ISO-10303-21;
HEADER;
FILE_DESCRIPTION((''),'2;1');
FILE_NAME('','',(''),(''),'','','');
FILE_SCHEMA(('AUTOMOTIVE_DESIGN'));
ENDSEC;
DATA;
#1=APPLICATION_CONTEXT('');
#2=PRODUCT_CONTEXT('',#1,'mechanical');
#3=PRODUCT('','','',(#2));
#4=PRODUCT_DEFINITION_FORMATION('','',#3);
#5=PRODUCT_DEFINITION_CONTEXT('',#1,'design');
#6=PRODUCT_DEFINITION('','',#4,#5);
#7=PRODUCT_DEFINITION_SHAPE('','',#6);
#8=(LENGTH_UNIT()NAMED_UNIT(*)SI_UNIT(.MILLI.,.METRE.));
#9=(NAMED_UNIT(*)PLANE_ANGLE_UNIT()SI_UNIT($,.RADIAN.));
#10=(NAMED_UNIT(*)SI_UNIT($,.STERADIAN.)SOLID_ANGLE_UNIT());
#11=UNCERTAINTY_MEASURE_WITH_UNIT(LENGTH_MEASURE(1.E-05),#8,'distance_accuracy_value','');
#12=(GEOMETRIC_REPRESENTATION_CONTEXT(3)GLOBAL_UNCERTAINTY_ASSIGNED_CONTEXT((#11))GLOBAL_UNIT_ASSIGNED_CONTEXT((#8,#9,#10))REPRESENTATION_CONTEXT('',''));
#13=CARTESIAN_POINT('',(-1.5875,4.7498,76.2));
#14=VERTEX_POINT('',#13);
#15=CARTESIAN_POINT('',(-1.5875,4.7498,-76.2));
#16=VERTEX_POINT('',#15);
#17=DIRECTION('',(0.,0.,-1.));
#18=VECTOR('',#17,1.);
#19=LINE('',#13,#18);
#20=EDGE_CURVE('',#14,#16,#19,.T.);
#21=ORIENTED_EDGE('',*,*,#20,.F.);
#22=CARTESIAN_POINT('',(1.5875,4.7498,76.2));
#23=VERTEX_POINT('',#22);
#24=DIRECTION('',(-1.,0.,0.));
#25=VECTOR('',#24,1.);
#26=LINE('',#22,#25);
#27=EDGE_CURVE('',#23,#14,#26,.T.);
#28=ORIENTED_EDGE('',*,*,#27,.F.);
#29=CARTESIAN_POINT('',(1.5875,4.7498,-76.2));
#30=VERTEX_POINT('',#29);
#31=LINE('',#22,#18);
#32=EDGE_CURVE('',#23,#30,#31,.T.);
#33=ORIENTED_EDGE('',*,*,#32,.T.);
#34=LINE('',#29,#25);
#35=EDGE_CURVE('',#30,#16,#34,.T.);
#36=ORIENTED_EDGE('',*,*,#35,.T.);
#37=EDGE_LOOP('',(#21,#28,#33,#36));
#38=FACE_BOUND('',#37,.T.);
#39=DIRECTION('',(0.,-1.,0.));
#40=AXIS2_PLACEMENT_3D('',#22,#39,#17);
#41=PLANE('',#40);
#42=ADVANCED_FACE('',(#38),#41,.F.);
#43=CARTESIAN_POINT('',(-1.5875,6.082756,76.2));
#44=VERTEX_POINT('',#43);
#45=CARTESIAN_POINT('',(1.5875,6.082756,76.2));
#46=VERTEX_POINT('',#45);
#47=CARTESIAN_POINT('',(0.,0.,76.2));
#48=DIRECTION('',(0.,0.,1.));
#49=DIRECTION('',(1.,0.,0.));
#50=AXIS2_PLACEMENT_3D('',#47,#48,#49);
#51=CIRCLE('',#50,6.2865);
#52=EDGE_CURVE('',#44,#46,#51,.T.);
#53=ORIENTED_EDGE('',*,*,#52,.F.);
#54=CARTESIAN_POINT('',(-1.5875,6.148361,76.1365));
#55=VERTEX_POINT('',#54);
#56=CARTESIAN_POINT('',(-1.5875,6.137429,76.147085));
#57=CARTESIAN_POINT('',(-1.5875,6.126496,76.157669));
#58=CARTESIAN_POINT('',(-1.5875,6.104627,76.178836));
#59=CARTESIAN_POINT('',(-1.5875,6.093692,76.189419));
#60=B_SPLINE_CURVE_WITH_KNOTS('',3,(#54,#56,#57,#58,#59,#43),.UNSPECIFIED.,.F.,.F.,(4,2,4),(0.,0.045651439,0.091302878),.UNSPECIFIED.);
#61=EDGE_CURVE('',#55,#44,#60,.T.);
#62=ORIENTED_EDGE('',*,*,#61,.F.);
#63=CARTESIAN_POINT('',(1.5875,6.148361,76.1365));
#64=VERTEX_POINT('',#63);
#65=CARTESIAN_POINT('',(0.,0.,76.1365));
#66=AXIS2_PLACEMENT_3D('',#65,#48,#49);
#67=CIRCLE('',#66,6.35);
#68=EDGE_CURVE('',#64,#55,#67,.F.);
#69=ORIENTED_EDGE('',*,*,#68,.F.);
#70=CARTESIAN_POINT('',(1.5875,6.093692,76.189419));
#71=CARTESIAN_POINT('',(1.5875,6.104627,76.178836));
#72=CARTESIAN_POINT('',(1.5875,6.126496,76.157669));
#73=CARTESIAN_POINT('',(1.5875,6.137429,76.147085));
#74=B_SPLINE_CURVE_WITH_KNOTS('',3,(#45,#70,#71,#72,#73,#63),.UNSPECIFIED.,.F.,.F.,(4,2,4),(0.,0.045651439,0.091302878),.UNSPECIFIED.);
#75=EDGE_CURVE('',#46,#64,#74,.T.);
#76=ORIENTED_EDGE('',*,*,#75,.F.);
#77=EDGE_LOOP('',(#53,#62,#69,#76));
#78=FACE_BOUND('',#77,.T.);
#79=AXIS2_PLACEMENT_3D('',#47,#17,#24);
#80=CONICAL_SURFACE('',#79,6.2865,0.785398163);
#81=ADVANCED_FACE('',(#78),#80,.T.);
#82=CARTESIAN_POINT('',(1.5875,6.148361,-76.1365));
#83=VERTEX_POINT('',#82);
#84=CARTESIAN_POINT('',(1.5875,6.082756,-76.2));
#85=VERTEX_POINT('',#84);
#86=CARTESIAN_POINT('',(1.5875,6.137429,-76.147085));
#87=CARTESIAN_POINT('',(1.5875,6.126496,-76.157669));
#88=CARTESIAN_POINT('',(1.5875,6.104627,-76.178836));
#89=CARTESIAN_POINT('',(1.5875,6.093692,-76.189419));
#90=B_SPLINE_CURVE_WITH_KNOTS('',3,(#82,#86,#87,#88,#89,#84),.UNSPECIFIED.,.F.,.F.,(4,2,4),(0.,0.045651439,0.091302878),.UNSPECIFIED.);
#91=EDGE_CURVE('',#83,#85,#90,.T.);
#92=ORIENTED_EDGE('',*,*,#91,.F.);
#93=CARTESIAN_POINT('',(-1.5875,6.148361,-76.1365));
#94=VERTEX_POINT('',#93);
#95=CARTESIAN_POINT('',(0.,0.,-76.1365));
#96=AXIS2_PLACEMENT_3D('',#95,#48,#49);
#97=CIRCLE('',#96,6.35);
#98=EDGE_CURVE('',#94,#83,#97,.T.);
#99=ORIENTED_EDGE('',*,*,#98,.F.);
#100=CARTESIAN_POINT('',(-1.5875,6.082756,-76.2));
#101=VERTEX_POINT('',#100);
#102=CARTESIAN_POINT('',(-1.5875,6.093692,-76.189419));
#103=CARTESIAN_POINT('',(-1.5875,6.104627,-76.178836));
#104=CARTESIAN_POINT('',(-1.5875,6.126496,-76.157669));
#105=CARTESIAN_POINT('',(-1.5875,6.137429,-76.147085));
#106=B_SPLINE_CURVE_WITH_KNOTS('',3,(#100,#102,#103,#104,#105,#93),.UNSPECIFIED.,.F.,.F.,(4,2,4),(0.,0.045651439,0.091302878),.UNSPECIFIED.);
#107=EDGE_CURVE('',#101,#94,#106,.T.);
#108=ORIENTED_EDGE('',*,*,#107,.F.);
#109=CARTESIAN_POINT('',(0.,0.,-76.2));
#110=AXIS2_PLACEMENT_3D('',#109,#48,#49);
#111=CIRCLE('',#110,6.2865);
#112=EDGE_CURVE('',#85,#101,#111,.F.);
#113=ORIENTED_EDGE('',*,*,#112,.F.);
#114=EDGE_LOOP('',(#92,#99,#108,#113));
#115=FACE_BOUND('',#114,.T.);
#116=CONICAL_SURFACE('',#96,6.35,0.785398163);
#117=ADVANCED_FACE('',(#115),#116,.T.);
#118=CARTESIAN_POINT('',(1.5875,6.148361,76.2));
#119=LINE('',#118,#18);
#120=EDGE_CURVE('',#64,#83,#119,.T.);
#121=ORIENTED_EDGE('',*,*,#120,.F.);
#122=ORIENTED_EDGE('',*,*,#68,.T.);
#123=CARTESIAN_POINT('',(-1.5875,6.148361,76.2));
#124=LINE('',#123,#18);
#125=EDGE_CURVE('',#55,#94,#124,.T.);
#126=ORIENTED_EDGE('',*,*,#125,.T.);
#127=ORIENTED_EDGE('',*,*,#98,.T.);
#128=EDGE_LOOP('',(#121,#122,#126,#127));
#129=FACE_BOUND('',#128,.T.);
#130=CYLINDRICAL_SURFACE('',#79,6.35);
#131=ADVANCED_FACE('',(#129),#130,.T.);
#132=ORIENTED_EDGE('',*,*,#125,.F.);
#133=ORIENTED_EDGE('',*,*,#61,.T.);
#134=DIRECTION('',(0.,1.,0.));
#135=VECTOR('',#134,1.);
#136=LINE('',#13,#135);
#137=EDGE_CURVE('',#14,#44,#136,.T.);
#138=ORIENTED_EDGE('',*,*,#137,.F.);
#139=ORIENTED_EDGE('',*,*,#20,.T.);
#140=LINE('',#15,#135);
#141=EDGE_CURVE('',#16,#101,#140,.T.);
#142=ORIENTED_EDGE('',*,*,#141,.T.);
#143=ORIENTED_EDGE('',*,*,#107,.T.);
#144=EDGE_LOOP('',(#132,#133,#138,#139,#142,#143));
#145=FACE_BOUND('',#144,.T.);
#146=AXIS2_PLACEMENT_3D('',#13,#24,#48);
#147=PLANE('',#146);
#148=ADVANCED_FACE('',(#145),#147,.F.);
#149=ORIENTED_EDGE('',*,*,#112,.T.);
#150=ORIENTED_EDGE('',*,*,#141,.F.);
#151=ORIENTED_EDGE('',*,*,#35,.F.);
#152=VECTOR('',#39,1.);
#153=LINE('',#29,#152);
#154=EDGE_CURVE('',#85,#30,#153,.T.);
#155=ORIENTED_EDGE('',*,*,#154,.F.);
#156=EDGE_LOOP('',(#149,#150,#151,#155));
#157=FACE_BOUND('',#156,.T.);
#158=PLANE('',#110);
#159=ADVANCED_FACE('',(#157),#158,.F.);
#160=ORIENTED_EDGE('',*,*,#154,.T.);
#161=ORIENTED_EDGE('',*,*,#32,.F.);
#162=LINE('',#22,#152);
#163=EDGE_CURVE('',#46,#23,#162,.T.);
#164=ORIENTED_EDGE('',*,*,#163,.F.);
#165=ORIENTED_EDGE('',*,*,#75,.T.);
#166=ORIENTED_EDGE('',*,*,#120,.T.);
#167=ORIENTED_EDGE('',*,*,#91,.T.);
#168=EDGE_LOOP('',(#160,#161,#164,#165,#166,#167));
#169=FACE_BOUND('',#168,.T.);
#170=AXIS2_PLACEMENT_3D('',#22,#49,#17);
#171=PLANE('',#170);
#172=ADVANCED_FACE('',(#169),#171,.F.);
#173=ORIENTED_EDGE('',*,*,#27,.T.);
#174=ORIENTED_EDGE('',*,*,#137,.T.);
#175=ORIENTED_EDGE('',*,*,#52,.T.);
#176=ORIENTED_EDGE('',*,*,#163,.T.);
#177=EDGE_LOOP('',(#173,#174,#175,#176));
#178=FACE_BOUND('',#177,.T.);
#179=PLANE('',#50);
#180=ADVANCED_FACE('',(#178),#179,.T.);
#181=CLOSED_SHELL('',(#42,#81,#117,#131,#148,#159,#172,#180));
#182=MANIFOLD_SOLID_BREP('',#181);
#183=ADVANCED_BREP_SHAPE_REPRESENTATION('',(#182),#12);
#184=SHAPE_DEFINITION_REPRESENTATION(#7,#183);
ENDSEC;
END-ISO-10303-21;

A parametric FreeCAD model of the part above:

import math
import FreeCAD as App
import Part
import Sketcher

V = App.Vector
Q = App.Units.Quantity


def edges_at(feature, points):
    """Names of the edges that pass closest to the given points."""
    edges = feature.Shape.Edges
    near = lambda p: min(range(len(edges)), key=lambda i: edges[i].distToShape(Part.Vertex(*p))[0])
    return sorted({f"Edge{near(p) + 1}" for p in points})

doc = App.newDocument("Part")
body = doc.addObject("PartDesign::Body", "Body")

# Sketch on XY plane
sketch1 = body.newObject("Sketcher::SketchObject", "Sketch")
sketch1.AttachmentSupport = (doc.getObject("XY_Plane"), [""])
sketch1.MapMode = "FlatFace"
sketch1.addGeometry([
    Part.LineSegment(V(-1.5875, 4.7498, 0), V(-1.5875, 6.148361, 0)),
    Part.ArcOfCircle(Part.Circle(V(0, 0, 0), V(0, 0, 1), 6.35), math.radians(104.477512), math.radians(435.522488)),
    Part.LineSegment(V(1.5875, 6.148361, 0), V(1.5875, 4.7498, 0)),
    Part.LineSegment(V(1.5875, 4.7498, 0), V(-1.5875, 4.7498, 0)),
], False)
sketch1.addConstraint([
    Sketcher.Constraint("Coincident", 0, 2, 1, 1),
    Sketcher.Constraint("Coincident", 1, 2, 2, 1),
    Sketcher.Constraint("Coincident", 2, 2, 3, 1),
    Sketcher.Constraint("Coincident", 3, 2, 0, 1),
    Sketcher.Constraint("Vertical", 0),
    Sketcher.Constraint("Vertical", 2),
    Sketcher.Constraint("Horizontal", 3),
    Sketcher.Constraint("Coincident", 1, 3, -1, 1),
    Sketcher.Constraint("Horizontal", 0, 2, 1, 2),
    Sketcher.Constraint("Radius", 1, Q("0.25 in")),
    Sketcher.Constraint("DistanceX", 3, 2, 3, 1, Q("0.125 in")),
    Sketcher.Constraint("DistanceY", -1, 1, 2, 2, Q("0.187 in")),
])
pad1 = body.newObject("PartDesign::Pad", "Pad")
pad1.Profile = sketch1
pad1.Type = "TwoLengths"
pad1.Length = Q("3 in")
pad1.Length2 = Q("3 in")
doc.recompute()

chamfer = body.newObject("PartDesign::Chamfer", "Chamfer")
chamfer.Base = (pad1, edges_at(pad1, [(0, -6.35, -76.2), (0, -6.35, 76.2)]))
chamfer.Size = Q("0.0025 in")

doc.recompute()
